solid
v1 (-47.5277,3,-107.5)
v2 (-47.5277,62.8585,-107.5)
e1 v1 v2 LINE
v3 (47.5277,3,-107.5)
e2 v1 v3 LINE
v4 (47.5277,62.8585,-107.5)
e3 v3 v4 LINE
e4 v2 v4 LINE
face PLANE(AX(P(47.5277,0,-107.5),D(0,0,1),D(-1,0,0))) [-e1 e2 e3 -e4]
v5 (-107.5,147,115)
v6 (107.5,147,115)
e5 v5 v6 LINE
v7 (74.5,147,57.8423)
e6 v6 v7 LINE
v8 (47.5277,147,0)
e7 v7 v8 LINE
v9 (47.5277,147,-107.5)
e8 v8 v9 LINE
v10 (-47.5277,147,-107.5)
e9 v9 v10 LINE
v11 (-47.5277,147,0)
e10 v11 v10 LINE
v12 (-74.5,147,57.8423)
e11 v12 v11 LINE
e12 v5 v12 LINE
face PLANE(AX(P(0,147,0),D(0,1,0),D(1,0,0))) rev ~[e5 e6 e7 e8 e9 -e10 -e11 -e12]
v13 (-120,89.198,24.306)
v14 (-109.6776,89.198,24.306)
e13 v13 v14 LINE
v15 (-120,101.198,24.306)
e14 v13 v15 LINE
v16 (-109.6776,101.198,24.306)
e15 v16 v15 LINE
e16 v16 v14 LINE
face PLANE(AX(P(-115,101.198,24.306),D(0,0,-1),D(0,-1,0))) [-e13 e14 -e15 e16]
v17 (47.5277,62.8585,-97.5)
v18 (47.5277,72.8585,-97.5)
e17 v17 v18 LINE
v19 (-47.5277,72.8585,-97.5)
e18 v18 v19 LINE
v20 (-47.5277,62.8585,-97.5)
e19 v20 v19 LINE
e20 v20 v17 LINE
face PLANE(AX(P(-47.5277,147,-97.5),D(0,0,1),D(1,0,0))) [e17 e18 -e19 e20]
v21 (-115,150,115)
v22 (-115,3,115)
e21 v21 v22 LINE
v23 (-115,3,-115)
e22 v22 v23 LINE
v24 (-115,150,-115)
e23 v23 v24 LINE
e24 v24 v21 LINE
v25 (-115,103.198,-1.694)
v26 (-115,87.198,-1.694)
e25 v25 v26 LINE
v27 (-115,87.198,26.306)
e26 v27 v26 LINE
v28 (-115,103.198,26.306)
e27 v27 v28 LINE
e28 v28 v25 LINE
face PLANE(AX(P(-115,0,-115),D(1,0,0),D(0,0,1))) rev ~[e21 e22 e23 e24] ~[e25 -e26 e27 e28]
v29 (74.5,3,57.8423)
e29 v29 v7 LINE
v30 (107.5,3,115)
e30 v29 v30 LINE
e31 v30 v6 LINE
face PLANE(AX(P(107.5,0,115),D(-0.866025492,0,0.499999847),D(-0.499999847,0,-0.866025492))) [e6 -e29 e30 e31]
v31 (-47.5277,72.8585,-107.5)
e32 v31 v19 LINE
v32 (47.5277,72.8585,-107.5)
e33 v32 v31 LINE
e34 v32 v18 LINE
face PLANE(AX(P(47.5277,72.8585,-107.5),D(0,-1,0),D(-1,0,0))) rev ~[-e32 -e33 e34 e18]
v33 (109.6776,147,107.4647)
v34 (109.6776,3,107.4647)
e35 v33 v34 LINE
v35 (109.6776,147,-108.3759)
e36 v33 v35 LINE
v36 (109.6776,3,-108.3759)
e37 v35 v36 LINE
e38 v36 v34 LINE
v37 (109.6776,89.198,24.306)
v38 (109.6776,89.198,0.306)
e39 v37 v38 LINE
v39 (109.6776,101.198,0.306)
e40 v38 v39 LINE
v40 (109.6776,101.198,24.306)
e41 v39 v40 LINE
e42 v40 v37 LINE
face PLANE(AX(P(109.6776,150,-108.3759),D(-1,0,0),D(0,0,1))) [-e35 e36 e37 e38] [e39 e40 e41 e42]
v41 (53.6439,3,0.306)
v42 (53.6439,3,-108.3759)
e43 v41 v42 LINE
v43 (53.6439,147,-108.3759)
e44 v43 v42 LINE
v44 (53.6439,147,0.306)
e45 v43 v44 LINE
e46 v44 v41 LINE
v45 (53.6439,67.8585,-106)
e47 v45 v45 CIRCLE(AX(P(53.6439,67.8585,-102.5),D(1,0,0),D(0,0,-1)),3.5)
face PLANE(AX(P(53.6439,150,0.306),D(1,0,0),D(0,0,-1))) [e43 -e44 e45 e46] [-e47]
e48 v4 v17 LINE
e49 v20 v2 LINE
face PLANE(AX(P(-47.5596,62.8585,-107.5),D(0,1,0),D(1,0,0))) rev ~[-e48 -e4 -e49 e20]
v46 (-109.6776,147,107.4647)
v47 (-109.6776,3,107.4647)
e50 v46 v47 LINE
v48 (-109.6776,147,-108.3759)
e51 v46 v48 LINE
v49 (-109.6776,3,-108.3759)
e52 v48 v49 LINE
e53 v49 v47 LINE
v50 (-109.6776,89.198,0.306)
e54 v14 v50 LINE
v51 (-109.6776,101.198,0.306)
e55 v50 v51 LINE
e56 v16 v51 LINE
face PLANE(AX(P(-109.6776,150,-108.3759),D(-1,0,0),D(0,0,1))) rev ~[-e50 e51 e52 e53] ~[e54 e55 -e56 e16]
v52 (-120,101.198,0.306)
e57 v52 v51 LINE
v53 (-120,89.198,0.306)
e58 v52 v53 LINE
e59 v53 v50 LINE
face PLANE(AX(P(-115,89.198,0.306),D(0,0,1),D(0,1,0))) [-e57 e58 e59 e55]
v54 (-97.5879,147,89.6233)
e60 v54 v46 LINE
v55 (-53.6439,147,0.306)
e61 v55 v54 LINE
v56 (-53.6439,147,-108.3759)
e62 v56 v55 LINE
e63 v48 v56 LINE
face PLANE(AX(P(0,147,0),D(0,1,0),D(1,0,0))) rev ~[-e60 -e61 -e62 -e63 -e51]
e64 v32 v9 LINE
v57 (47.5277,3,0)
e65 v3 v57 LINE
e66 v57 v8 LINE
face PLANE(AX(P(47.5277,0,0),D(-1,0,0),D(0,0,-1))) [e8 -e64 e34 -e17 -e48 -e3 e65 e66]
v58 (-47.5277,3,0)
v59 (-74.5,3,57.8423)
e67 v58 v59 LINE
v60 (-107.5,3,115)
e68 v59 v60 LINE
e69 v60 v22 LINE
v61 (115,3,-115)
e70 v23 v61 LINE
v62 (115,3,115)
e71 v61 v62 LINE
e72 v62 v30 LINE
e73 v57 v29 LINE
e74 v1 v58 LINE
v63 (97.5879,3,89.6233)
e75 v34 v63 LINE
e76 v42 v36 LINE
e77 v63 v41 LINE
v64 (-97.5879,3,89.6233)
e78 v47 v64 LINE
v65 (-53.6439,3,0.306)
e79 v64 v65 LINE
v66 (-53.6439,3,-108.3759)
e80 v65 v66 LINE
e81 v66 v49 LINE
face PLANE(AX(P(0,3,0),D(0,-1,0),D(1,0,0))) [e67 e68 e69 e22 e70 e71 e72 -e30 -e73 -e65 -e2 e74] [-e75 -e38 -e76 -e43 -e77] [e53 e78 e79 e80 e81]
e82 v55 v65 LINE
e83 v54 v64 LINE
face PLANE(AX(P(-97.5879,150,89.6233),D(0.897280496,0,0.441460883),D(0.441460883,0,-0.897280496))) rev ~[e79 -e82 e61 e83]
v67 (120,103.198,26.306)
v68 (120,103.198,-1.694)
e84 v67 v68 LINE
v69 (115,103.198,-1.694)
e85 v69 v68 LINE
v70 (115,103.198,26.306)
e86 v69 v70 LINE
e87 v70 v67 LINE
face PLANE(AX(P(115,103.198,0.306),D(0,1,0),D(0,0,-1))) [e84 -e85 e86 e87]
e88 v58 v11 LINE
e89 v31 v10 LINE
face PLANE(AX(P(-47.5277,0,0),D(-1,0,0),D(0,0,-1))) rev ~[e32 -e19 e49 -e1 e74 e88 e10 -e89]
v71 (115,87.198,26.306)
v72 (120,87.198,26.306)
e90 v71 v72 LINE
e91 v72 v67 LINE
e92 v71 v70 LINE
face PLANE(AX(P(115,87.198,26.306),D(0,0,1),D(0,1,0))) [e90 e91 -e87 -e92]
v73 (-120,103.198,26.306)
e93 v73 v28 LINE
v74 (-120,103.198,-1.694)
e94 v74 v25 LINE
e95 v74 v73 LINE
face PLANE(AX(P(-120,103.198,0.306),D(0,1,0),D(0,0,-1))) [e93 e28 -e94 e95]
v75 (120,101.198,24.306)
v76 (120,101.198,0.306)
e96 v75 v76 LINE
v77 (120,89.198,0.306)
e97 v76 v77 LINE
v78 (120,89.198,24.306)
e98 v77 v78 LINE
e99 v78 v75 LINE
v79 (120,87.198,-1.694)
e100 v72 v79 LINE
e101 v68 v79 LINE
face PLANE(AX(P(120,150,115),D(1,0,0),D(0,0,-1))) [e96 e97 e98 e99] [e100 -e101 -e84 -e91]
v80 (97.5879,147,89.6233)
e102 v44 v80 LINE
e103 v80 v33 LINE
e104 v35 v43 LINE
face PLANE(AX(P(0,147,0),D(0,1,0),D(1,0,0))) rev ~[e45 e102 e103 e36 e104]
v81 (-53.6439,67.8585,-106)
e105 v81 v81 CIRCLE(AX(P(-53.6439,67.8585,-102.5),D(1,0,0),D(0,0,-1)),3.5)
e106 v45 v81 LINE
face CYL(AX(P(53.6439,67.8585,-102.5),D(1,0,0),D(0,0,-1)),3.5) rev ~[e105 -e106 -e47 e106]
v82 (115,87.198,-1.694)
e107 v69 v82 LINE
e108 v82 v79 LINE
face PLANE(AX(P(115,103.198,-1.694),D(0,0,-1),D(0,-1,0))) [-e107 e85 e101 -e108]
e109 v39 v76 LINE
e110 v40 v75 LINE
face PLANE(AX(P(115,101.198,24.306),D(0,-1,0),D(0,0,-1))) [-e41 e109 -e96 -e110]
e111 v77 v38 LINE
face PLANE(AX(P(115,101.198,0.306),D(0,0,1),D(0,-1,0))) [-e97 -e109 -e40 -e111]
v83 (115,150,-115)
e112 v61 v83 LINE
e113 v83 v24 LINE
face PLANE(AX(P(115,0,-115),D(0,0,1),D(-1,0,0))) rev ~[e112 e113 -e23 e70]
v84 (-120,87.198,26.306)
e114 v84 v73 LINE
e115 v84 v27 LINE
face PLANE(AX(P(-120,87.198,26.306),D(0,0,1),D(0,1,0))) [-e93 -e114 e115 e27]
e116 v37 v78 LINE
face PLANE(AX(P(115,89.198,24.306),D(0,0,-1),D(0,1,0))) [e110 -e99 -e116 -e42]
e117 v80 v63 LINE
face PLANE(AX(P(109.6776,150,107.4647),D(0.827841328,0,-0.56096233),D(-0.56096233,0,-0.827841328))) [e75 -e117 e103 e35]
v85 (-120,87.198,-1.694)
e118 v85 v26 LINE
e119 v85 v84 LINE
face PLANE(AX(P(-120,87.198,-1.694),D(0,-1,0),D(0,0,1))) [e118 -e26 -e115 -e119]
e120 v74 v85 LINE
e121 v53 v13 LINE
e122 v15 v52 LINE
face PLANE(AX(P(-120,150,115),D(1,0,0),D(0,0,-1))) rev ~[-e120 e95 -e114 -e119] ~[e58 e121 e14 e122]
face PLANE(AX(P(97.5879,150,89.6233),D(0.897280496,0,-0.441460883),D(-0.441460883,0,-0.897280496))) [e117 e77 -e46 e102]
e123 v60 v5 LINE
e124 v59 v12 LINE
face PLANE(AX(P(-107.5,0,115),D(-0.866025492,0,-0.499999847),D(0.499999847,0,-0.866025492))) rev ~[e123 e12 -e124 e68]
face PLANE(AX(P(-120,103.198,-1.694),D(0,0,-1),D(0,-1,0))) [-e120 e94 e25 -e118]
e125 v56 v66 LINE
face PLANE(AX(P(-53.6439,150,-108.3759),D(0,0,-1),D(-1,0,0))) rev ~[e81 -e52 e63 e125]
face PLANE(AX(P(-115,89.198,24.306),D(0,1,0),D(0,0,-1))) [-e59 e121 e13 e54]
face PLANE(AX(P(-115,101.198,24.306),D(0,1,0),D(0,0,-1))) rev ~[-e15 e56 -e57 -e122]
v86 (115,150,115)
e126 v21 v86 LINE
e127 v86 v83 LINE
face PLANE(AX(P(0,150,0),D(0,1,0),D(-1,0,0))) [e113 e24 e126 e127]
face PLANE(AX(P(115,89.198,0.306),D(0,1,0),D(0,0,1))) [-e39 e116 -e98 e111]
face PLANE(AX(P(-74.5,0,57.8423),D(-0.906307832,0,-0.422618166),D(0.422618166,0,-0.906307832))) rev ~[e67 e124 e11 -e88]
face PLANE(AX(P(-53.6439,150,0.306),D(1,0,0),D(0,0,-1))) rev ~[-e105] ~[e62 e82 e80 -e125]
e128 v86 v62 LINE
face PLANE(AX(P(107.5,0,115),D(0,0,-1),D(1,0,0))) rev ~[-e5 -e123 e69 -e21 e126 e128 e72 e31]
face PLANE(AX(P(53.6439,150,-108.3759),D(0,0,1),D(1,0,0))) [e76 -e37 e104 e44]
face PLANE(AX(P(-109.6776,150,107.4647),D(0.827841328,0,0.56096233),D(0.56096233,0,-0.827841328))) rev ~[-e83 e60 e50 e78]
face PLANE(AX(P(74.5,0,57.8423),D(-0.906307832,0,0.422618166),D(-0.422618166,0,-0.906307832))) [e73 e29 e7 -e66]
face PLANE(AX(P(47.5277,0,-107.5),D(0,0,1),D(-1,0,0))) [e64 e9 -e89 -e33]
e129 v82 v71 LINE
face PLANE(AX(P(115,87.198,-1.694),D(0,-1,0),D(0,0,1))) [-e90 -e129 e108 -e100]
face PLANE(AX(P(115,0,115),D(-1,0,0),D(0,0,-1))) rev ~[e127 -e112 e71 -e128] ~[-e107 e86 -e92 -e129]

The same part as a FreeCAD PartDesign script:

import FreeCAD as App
import Part
import Sketcher
Q = App.Units.Quantity


def add_polygon(sketch, points):
    """Adds a closed chain of lines whose ends are joined by coincident constraints."""
    first, n = sketch.GeometryCount, len(points)
    for a, b in zip(points, points[1:] + points[:1]):
        sketch.addGeometry(Part.LineSegment(App.Vector(*a, 0), App.Vector(*b, 0)), False)
    for i in range(n):
        sketch.addConstraint(Sketcher.Constraint("Coincident", first + i, 2, first + (i + 1) % n, 1))

doc = App.newDocument("Part")
body = doc.addObject("PartDesign::Body", "Body")

# Sketch on XZ plane
sketch1 = body.newObject("Sketcher::SketchObject", "Sketch")
sketch1.AttachmentSupport = (doc.getObject("XZ_Plane"), [""])
sketch1.MapMode = "FlatFace"
add_polygon(sketch1, [(115, 115), (115, -115), (-115, -115), (-115, 115), (-108, 115), (-74, 58), (-48, 0), (-48, -108), (48, -108), (48, 0), (74, 58), (108, 115)])  # lines 0-11
sketch1.addConstraint(Sketcher.Constraint("Vertical", 0))
sketch1.addConstraint(Sketcher.Constraint("Horizontal", 1))
sketch1.addConstraint(Sketcher.Constraint("Vertical", 2))
sketch1.addConstraint(Sketcher.Constraint("Horizontal", 3))
sketch1.addConstraint(Sketcher.Constraint("Vertical", 6))
sketch1.addConstraint(Sketcher.Constraint("Horizontal", 7))
sketch1.addConstraint(Sketcher.Constraint("Vertical", 8))
sketch1.addConstraint(Sketcher.Constraint("Horizontal", 11))
sketch1.addConstraint(Sketcher.Constraint("Symmetric", 0, 2, 2, 2, -1, 1))
sketch1.addConstraint(Sketcher.Constraint("Symmetric", 5, 2, 8, 2, -1, 1))
sketch1.addConstraint(Sketcher.Constraint("Symmetric", 4, 2, 9, 2, -2))
sketch1.addConstraint(Sketcher.Constraint("Symmetric", 3, 2, 10, 2, -2))
sketch1.addConstraint(Sketcher.Constraint("PointOnObject", 5, 2, -1))
sketch1.addConstraint(Sketcher.Constraint("Equal", 1, 0))
sketch1.addConstraint(Sketcher.Constraint("DistanceX", 1, 2, 1, 1, Q("230 mm")))
sketch1.addConstraint(Sketcher.Constraint("Angle", 4, Q("-60 deg")))
sketch1.addConstraint(Sketcher.Constraint("Angle", 5, Q("-65 deg")))
sketch1.addConstraint(Sketcher.Constraint("Distance", 4, Q("66 mm")))
sketch1.addConstraint(Sketcher.Constraint("DistanceX", 3, 1, 3, 2, Q("7.5 mm")))
sketch1.addConstraint(Sketcher.Constraint("DistanceY", 6, 2, 6, 1, Q("107.5 mm")))
pad1 = body.newObject("PartDesign::Pad", "Pad")
pad1.Profile = sketch1
pad1.Length = 150
pad1.Reversed = True

# Sketch on XZ plane
sketch2 = body.newObject("Sketcher::SketchObject", "Sketch001")
sketch2.AttachmentSupport = (doc.getObject("XZ_Plane"), [""])
sketch2.MapMode = "FlatFace"
sketch2.AttachmentOffset = App.Placement(App.Vector(0, 0, -150), App.Rotation())
add_polygon(sketch2, [(54, 0), (98, 90), (110, 107), (110, -108), (54, -108)])  # lines 0-4
add_polygon(sketch2, [(-110, 107), (-98, 90), (-54, 0), (-54, -108), (-110, -108)])  # lines 5-9
sketch2.addConstraint(Sketcher.Constraint("Vertical", 2))
sketch2.addConstraint(Sketcher.Constraint("Horizontal", 3))
sketch2.addConstraint(Sketcher.Constraint("Vertical", 4))
sketch2.addConstraint(Sketcher.Constraint("Vertical", 7))
sketch2.addConstraint(Sketcher.Constraint("Horizontal", 8))
sketch2.addConstraint(Sketcher.Constraint("Vertical", 9))
sketch2.addConstraint(Sketcher.Constraint("Symmetric", 0, 2, 5, 2, -2))
sketch2.addConstraint(Sketcher.Constraint("Symmetric", 4, 2, 6, 2, -2))
sketch2.addConstraint(Sketcher.Constraint("Symmetric", 2, 2, 8, 2, -2))
sketch2.addConstraint(Sketcher.Constraint("Horizontal", 1, 2, 9, 2))
sketch2.addConstraint(Sketcher.Constraint("DistanceY", 4, 1, 4, 2, Q("108.682 mm")))
sketch2.addConstraint(Sketcher.Constraint("DistanceX", 3, 2, 3, 1, Q("56.0337 mm")))
sketch2.addConstraint(Sketcher.Constraint("DistanceY", 2, 2, 2, 1, Q("215.8406 mm")))
sketch2.addConstraint(Sketcher.Constraint("DistanceX", -1, 1, 0, 2, Q("97.588 mm")))
sketch2.addConstraint(Sketcher.Constraint("DistanceY", 2, 2, -1, 1, Q("108.376 mm")))
sketch2.addConstraint(Sketcher.Constraint("DistanceX", -1, 1, 3, 2, Q("53.644 mm")))
sketch2.addConstraint(Sketcher.Constraint("Distance", 0, Q("99.5422 mm")))
pocket1 = body.newObject("PartDesign::Pocket", "Pocket")
pocket1.Profile = sketch2
pocket1.Length = 135161
pocket1.Reversed = True

# Sketch on XZ plane
sketch3 = body.newObject("Sketcher::SketchObject", "Sketch002")
sketch3.AttachmentSupport = (doc.getObject("XZ_Plane"), [""])
sketch3.MapMode = "FlatFace"
sketch3.AttachmentOffset = App.Placement(App.Vector(0, 0, -150), App.Rotation())
add_polygon(sketch3, [(-115, 115), (115, 115), (115, -115), (-115, -115)])  # lines 0-3
sketch3.addConstraint(Sketcher.Constraint("Horizontal", 0))
sketch3.addConstraint(Sketcher.Constraint("Vertical", 1))
sketch3.addConstraint(Sketcher.Constraint("Horizontal", 2))
sketch3.addConstraint(Sketcher.Constraint("Vertical", 3))
sketch3.addConstraint(Sketcher.Constraint("Symmetric", 0, 2, 2, 2, -1, 1))
sketch3.addConstraint(Sketcher.Constraint("Equal", 2, 1))
sketch3.addConstraint(Sketcher.Constraint("DistanceX", 0, 1, 0, 2, Q("230 mm")))
pad2 = body.newObject("PartDesign::Pad", "Pad001")
pad2.Profile = sketch3
pad2.Length = 3

# Sketch on XZ plane
sketch4 = body.newObject("Sketcher::SketchObject", "Sketch003")
sketch4.AttachmentSupport = (doc.getObject("XZ_Plane"), [""])
sketch4.MapMode = "FlatFace"
add_polygon(sketch4, [(-115, 115), (-115, -115), (115, -115), (115, 115)])  # lines 0-3
sketch4.addConstraint(Sketcher.Constraint("Vertical", 0))
sketch4.addConstraint(Sketcher.Constraint("Horizontal", 1))
sketch4.addConstraint(Sketcher.Constraint("Vertical", 2))
sketch4.addConstraint(Sketcher.Constraint("Horizontal", 3))
sketch4.addConstraint(Sketcher.Constraint("Symmetric", 0, 2, 2, 2, -1, 1))
sketch4.addConstraint(Sketcher.Constraint("Equal", 3, 0))
sketch4.addConstraint(Sketcher.Constraint("DistanceX", 1, 1, 1, 2, Q("230 mm")))
pocket2 = body.newObject("PartDesign::Pocket", "Pocket001")
pocket2.Profile = sketch4
pocket2.Length = 3

# Sketch on XY plane
sketch5 = body.newObject("Sketcher::SketchObject", "Sketch004")
sketch5.AttachmentSupport = (doc.getObject("XY_Plane"), [""])
sketch5.MapMode = "FlatFace"
sketch5.AttachmentOffset = App.Placement(App.Vector(0, 0, -107.5), App.Rotation())
add_polygon(sketch5, [(-48, 63), (48, 63), (48, 73), (-48, 73)])  # lines 0-3
sketch5.addConstraint(Sketcher.Constraint("Horizontal", 0))
sketch5.addConstraint(Sketcher.Constraint("Vertical", 1))
sketch5.addConstraint(Sketcher.Constraint("Horizontal", 2))
sketch5.addConstraint(Sketcher.Constraint("Vertical", 3))
sketch5.addConstraint(Sketcher.Constraint("DistanceY", 1, 1, 1, 2, Q("10 mm")))
sketch5.addConstraint(Sketcher.Constraint("DistanceX", 0, 1, 0, 2, Q("95.0873 mm")))
sketch5.addConstraint(Sketcher.Constraint("DistanceX", -1, 1, 0, 2, Q("47.5277 mm")))
sketch5.addConstraint(Sketcher.Constraint("DistanceY", -1, 1, 0, 2, Q("62.8585 mm")))
pad3 = body.newObject("PartDesign::Pad", "Pad002")
pad3.Profile = sketch5
pad3.Length = 10

# Sketch on YZ plane
sketch6 = body.newObject("Sketcher::SketchObject", "Sketch005")
sketch6.AttachmentSupport = (doc.getObject("YZ_Plane"), [""])
sketch6.MapMode = "FlatFace"
sketch6.AttachmentOffset = App.Placement(App.Vector(0, 0, 53.6439), App.Rotation())
sketch6.addGeometry(Part.Circle(App.Vector(67.9, -102.5, 0), App.Vector(0, 0, 1), 3.5), False)
sketch6.addConstraint(Sketcher.Constraint("Diameter", 0, Q("7 mm")))
sketch6.addConstraint(Sketcher.Constraint("DistanceY", 0, 3, -1, 1, Q("102.5 mm")))
sketch6.addConstraint(Sketcher.Constraint("DistanceX", -1, 1, 0, 3, Q("67.8585 mm")))
pocket3 = body.newObject("PartDesign::Pocket", "Pocket002")
pocket3.Profile = sketch6
pocket3.Length = 113.25

# Sketch on YZ plane
sketch7 = body.newObject("Sketcher::SketchObject", "Sketch006")
sketch7.AttachmentSupport = (doc.getObject("YZ_Plane"), [""])
sketch7.MapMode = "FlatFace"
sketch7.AttachmentOffset = App.Placement(App.Vector(0, 0, 115), App.Rotation())
add_polygon(sketch7, [(103, -2), (103, 26), (87, 26), (87, -2)])  # lines 0-3
add_polygon(sketch7, [(101, 0), (89, 0), (89, 24), (101, 24)])  # lines 4-7
sketch7.addConstraint(Sketcher.Constraint("Vertical", 0))
sketch7.addConstraint(Sketcher.Constraint("Horizontal", 1))
sketch7.addConstraint(Sketcher.Constraint("Vertical", 2))
sketch7.addConstraint(Sketcher.Constraint("Horizontal", 3))
sketch7.addConstraint(Sketcher.Constraint("Horizontal", 4))
sketch7.addConstraint(Sketcher.Constraint("Vertical", 5))
sketch7.addConstraint(Sketcher.Constraint("Horizontal", 6))
sketch7.addConstraint(Sketcher.Constraint("Vertical", 7))
sketch7.addConstraint(Sketcher.Constraint("DistanceX", 1, 2, 1, 1, Q("16 mm")))
sketch7.addConstraint(Sketcher.Constraint("DistanceX", 4, 2, 4, 1, Q("12 mm")))
sketch7.addConstraint(Sketcher.Constraint("DistanceY", 0, 1, 0, 2, Q("28 mm")))
sketch7.addConstraint(Sketcher.Constraint("DistanceY", 5, 1, 5, 2, Q("24 mm")))
sketch7.addConstraint(Sketcher.Constraint("DistanceX", 2, 2, 4, 2, Q("2 mm")))
sketch7.addConstraint(Sketcher.Constraint("DistanceY", 2, 2, 4, 2, Q("2 mm")))
sketch7.addConstraint(Sketcher.Constraint("DistanceX", -1, 1, 0, 2, Q("103.198 mm")))
sketch7.addConstraint(Sketcher.Constraint("DistanceY", -1, 1, 0, 2, Q("26.306 mm")))
pad4 = body.newObject("PartDesign::Pad", "Pad003")
pad4.Profile = sketch7
pad4.Length = 5

# Sketch on YZ plane
sketch8 = body.newObject("Sketcher::SketchObject", "Sketch007")
sketch8.AttachmentSupport = (doc.getObject("YZ_Plane"), [""])
sketch8.MapMode = "FlatFace"
sketch8.AttachmentOffset = App.Placement(App.Vector(0, 0, 115), App.Rotation())
add_polygon(sketch8, [(89, 0), (101, 0), (101, 24), (89, 24)])  # lines 0-3
sketch8.addConstraint(Sketcher.Constraint("Horizontal", 0))
sketch8.addConstraint(Sketcher.Constraint("Vertical", 1))
sketch8.addConstraint(Sketcher.Constraint("Horizontal", 2))
sketch8.addConstraint(Sketcher.Constraint("Vertical", 3))
sketch8.addConstraint(Sketcher.Constraint("DistanceX", 0, 1, 0, 2, Q("12 mm")))
sketch8.addConstraint(Sketcher.Constraint("DistanceY", 1, 1, 1, 2, Q("24 mm")))
sketch8.addConstraint(Sketcher.Constraint("DistanceX", -1, 1, 0, 2, Q("101.198 mm")))
sketch8.addConstraint(Sketcher.Constraint("DistanceY", -1, 1, 0, 2, Q("0.306 mm")))
pocket4 = body.newObject("PartDesign::Pocket", "Pocket003")
pocket4.Profile = sketch8
pocket4.Length = 44.75
doc.recompute()

linearpattern = body.newObject("PartDesign::LinearPattern", "LinearPattern")
linearpattern.Originals = [pad4]
linearpattern.Direction = (doc.getObject("X_Axis"), [""])
linearpattern.Mode = "offset"
linearpattern.Offset = 235
linearpattern.Occurrences = 2
linearpattern.Reversed = True
body.Tip = linearpattern

# Sketch on YZ plane
sketch9 = body.newObject("Sketcher::SketchObject", "Sketch008")
sketch9.AttachmentSupport = (doc.getObject("YZ_Plane"), [""])
sketch9.MapMode = "FlatFace"
sketch9.AttachmentOffset = App.Placement(App.Vector(0, 0, -115), App.Rotation())
add_polygon(sketch9, [(89, 24), (101, 24), (101, 0), (89, 0)])  # lines 0-3
sketch9.addConstraint(Sketcher.Constraint("Horizontal", 0))
sketch9.addConstraint(Sketcher.Constraint("Vertical", 1))
sketch9.addConstraint(Sketcher.Constraint("Horizontal", 2))
sketch9.addConstraint(Sketcher.Constraint("Vertical", 3))
sketch9.addConstraint(Sketcher.Constraint("DistanceX", 0, 1, 0, 2, Q("12 mm")))
sketch9.addConstraint(Sketcher.Constraint("DistanceY", 1, 2, 1, 1, Q("24 mm")))
sketch9.addConstraint(Sketcher.Constraint("DistanceX", -1, 1, 0, 2, Q("101.198 mm")))
sketch9.addConstraint(Sketcher.Constraint("DistanceY", -1, 1, 0, 2, Q("24.306 mm")))
pocket5 = body.newObject("PartDesign::Pocket", "Pocket004")
pocket5.Profile = sketch9
pocket5.Length = 18
pocket5.Reversed = True

doc.recompute()
